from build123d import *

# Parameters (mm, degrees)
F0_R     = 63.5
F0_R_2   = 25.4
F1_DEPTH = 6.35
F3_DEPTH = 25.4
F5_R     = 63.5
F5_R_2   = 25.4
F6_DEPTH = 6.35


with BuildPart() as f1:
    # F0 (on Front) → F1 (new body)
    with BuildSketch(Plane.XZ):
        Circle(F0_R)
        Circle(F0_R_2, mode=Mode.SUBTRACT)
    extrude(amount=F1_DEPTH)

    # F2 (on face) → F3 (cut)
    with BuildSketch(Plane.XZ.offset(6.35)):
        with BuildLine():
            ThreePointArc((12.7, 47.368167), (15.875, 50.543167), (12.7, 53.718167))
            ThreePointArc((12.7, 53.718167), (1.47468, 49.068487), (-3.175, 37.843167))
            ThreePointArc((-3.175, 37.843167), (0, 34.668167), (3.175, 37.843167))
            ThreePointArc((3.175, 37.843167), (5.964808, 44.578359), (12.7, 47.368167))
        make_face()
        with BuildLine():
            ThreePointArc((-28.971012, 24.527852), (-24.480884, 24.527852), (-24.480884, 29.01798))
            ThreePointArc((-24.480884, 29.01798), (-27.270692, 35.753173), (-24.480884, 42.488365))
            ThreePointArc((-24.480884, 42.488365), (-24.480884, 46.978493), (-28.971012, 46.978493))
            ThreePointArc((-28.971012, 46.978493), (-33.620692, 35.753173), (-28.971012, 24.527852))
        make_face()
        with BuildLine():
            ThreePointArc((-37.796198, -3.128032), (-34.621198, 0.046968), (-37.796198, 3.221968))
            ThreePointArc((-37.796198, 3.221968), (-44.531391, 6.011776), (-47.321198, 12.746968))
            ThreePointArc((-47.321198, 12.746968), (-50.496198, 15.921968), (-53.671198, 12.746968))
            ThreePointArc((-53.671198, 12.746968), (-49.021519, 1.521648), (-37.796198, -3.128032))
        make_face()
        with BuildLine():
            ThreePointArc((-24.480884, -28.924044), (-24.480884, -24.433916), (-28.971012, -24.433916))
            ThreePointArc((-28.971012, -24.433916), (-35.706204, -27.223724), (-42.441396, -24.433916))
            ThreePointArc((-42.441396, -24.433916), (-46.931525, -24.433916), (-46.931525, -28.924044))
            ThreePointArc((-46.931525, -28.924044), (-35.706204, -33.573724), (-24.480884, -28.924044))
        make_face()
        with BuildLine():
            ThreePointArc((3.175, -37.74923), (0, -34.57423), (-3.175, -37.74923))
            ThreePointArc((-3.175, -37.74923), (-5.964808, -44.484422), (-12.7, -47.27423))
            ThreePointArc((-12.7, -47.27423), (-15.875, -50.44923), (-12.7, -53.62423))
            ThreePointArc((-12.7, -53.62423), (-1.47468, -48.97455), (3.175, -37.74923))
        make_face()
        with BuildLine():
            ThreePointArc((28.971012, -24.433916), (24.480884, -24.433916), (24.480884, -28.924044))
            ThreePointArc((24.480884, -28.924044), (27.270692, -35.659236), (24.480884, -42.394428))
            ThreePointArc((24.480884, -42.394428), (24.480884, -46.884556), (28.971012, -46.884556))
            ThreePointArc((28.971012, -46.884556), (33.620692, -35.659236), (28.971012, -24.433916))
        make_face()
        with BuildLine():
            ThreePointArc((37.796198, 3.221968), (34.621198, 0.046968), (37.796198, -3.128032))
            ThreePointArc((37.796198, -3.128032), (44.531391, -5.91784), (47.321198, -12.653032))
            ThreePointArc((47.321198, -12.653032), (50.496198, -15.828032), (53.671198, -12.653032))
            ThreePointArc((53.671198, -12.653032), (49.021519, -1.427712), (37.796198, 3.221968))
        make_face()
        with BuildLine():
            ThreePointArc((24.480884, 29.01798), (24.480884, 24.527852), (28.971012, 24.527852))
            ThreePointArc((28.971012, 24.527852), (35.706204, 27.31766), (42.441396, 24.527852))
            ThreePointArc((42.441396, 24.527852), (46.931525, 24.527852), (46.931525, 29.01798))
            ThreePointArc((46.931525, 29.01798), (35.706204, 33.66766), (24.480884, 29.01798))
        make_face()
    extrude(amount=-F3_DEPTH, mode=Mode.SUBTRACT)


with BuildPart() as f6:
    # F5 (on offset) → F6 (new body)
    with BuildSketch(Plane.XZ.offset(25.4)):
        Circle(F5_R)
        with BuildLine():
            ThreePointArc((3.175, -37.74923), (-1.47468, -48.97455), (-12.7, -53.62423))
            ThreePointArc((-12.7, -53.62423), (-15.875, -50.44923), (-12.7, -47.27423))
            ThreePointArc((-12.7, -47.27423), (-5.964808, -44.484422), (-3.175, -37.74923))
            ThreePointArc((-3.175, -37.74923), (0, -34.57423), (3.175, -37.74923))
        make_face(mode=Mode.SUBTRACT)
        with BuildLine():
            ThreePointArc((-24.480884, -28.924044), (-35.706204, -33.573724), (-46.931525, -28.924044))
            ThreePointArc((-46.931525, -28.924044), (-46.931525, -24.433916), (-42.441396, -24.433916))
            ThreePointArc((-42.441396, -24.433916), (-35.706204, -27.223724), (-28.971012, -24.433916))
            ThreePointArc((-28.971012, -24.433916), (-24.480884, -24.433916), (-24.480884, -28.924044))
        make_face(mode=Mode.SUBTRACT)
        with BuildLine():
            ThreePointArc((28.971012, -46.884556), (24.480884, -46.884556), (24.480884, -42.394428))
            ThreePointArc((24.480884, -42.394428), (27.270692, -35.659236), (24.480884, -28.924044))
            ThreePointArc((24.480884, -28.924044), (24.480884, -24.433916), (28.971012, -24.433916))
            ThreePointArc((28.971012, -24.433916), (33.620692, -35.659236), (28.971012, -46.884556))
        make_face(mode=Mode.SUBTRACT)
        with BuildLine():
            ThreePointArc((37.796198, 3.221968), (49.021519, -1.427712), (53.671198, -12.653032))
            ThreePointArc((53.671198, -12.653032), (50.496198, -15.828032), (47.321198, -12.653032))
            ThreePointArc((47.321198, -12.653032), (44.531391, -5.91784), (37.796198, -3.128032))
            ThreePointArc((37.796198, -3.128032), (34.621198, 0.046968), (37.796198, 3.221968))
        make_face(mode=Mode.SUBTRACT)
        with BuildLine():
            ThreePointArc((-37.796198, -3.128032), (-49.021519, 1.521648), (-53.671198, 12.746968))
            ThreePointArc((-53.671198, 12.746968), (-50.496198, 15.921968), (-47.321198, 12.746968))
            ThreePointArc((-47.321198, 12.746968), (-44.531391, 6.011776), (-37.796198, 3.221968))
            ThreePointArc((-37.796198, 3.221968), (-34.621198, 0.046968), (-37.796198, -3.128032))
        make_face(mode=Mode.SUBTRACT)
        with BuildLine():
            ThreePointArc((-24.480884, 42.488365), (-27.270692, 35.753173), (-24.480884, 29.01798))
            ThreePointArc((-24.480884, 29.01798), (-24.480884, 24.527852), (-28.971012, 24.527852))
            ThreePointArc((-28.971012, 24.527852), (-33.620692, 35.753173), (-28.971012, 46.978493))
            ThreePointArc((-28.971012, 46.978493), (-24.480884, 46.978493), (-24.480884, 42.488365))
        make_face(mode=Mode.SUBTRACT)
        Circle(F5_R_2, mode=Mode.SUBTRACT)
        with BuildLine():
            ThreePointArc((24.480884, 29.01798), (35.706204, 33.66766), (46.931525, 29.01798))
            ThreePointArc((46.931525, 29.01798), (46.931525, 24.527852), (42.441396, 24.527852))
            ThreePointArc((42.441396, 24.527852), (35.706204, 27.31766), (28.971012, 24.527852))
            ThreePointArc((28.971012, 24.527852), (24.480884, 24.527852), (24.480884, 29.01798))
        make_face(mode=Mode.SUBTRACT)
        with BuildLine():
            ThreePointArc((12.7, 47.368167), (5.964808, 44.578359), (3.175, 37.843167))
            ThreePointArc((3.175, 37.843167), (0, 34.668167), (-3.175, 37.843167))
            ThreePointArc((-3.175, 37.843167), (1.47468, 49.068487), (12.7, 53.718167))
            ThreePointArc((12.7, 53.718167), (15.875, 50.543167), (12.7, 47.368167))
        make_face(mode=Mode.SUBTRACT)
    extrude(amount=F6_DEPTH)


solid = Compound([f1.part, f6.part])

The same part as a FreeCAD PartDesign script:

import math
import FreeCAD as App
import Part
import Sketcher

V = App.Vector
Q = App.Units.Quantity

doc = App.newDocument("Part")
body = doc.addObject("PartDesign::Body", "Body")

sketch1 = body.newObject("Sketcher::SketchObject", "Sketch")
sketch1.AttachmentSupport = (doc.getObject("XZ_Plane"), [""])
sketch1.MapMode = "FlatFace"
sketch1.addGeometry([
    Part.Circle(V(0, 0, 0), V(0, 0, 1), 64),
    Part.Circle(V(0, 0, 0), V(0, 0, 1), 25),
], False)
sketch1.addConstraint([
    Sketcher.Constraint("Coincident", 0, 3, -1, 1),
    Sketcher.Constraint("Coincident", 1, 3, -1, 1),
    Sketcher.Constraint("Diameter", 0, Q("5 in")),
    Sketcher.Constraint("Diameter", 1, Q("2 in")),
])
pad1 = body.newObject("PartDesign::Pad", "Pad")
pad1.Profile = sketch1
pad1.Length = Q("0.25 in")

sketch2 = body.newObject("Sketcher::SketchObject", "Sketch001")
sketch2.AttachmentSupport = (doc.getObject("XZ_Plane"), [""])
sketch2.MapMode = "FlatFace"
sketch2.AttachmentOffset = App.Placement(V(0, 0, 0.25 * 25.4), App.Rotation())
sketch2.addGeometry([
    Part.ArcOfCircle(Part.Circle(V(12.7, 50.5, 0), V(0, 0, 1), 3.2), math.radians(-90), math.radians(90)),
    Part.ArcOfCircle(Part.Circle(V(12.7, 37.8, 0), V(0, 0, 1), 15.9), math.radians(90), math.radians(180)),
    Part.ArcOfCircle(Part.Circle(V(0, 37.8, 0), V(0, 0, 1), 3.2), math.radians(180), math.radians(360)),
    Part.ArcOfCircle(Part.Circle(V(12.7, 37.8, 0), V(0, 0, 1), 9.5), math.radians(90), math.radians(180)),
    Part.ArcOfCircle(Part.Circle(V(-26.7, 26.8, 0), V(0, 0, 1), 3.2), math.radians(-135), math.radians(45)),
    Part.ArcOfCircle(Part.Circle(V(-17.7, 35.8, 0), V(0, 0, 1), 9.5), math.radians(135), math.radians(225)),
    Part.ArcOfCircle(Part.Circle(V(-26.7, 44.7, 0), V(0, 0, 1), 3.2), math.radians(-45), math.radians(135)),
    Part.ArcOfCircle(Part.Circle(V(-17.7, 35.8, 0), V(0, 0, 1), 15.9), math.radians(135), math.radians(225)),
    Part.ArcOfCircle(Part.Circle(V(-37.8, 0, 0), V(0, 0, 1), 3.2), math.radians(-90), math.radians(90)),
    Part.ArcOfCircle(Part.Circle(V(-37.8, 12.7, 0), V(0, 0, 1), 9.5), math.radians(180), math.radians(270)),
    Part.ArcOfCircle(Part.Circle(V(-50.5, 12.7, 0), V(0, 0, 1), 3.2), math.radians(0), math.radians(180)),
    Part.ArcOfCircle(Part.Circle(V(-37.8, 12.7, 0), V(0, 0, 1), 15.9), math.radians(180), math.radians(270)),
    Part.ArcOfCircle(Part.Circle(V(-26.7, -26.7, 0), V(0, 0, 1), 3.2), math.radians(-45), math.radians(135)),
    Part.ArcOfCircle(Part.Circle(V(-35.7, -17.7, 0), V(0, 0, 1), 9.5), math.radians(-135), math.radians(-45)),
    Part.ArcOfCircle(Part.Circle(V(-44.7, -26.7, 0), V(0, 0, 1), 3.2), math.radians(45), math.radians(225)),
    Part.ArcOfCircle(Part.Circle(V(-35.7, -17.7, 0), V(0, 0, 1), 15.9), math.radians(-135), math.radians(-45)),
    Part.ArcOfCircle(Part.Circle(V(0, -37.7, 0), V(0, 0, 1), 3.2), math.radians(0), math.radians(180)),
    Part.ArcOfCircle(Part.Circle(V(-12.7, -37.7, 0), V(0, 0, 1), 9.5), math.radians(-90), math.radians(0)),
    Part.ArcOfCircle(Part.Circle(V(-12.7, -50.4, 0), V(0, 0, 1), 3.2), math.radians(90), math.radians(270)),
    Part.ArcOfCircle(Part.Circle(V(-12.7, -37.7, 0), V(0, 0, 1), 15.9), math.radians(-90), math.radians(0)),
    Part.ArcOfCircle(Part.Circle(V(26.7, -26.7, 0), V(0, 0, 1), 3.2), math.radians(45), math.radians(225)),
    Part.ArcOfCircle(Part.Circle(V(17.7, -35.7, 0), V(0, 0, 1), 9.5), math.radians(-45), math.radians(45)),
    Part.ArcOfCircle(Part.Circle(V(26.7, -44.6, 0), V(0, 0, 1), 3.2), math.radians(135), math.radians(315)),
    Part.ArcOfCircle(Part.Circle(V(17.7, -35.7, 0), V(0, 0, 1), 15.9), math.radians(-45), math.radians(45)),
    Part.ArcOfCircle(Part.Circle(V(37.8, 0, 0), V(0, 0, 1), 3.2), math.radians(90), math.radians(270)),
    Part.ArcOfCircle(Part.Circle(V(37.8, -12.7, 0), V(0, 0, 1), 9.5), math.radians(0), math.radians(90)),
    Part.ArcOfCircle(Part.Circle(V(50.5, -12.7, 0), V(0, 0, 1), 3.2), math.radians(180), math.radians(360)),
    Part.ArcOfCircle(Part.Circle(V(37.8, -12.7, 0), V(0, 0, 1), 15.9), math.radians(0), math.radians(90)),
    Part.ArcOfCircle(Part.Circle(V(26.7, 26.8, 0), V(0, 0, 1), 3.2), math.radians(135), math.radians(315)),
    Part.ArcOfCircle(Part.Circle(V(35.7, 17.8, 0), V(0, 0, 1), 9.5), math.radians(45), math.radians(135)),
    Part.ArcOfCircle(Part.Circle(V(44.7, 26.8, 0), V(0, 0, 1), 3.2), math.radians(-135), math.radians(45)),
    Part.ArcOfCircle(Part.Circle(V(35.7, 17.8, 0), V(0, 0, 1), 15.9), math.radians(45), math.radians(135)),
], False)
sketch2.addConstraint([
    Sketcher.Constraint("Tangent", 0, 2, 1, 1),
    Sketcher.Constraint("Tangent", 1, 2, 2, 1),
    Sketcher.Constraint("Tangent", 2, 2, 3, 2),
    Sketcher.Constraint("Tangent", 3, 1, 0, 1),
    Sketcher.Constraint("Tangent", 4, 2, 5, 2),
    Sketcher.Constraint("Tangent", 5, 1, 6, 1),
    Sketcher.Constraint("Tangent", 6, 2, 7, 1),
    Sketcher.Constraint("Tangent", 7, 2, 4, 1),
    Sketcher.Constraint("Tangent", 8, 2, 9, 2),
    Sketcher.Constraint("Tangent", 9, 1, 10, 1),
    Sketcher.Constraint("Tangent", 10, 2, 11, 1),
    Sketcher.Constraint("Tangent", 11, 2, 8, 1),
    Sketcher.Constraint("Tangent", 12, 2, 13, 2),
    Sketcher.Constraint("Tangent", 13, 1, 14, 1),
    Sketcher.Constraint("Tangent", 14, 2, 15, 1),
    Sketcher.Constraint("Tangent", 15, 2, 12, 1),
    Sketcher.Constraint("Tangent", 16, 2, 17, 2),
    Sketcher.Constraint("Tangent", 17, 1, 18, 1),
    Sketcher.Constraint("Tangent", 18, 2, 19, 1),
    Sketcher.Constraint("Tangent", 19, 2, 16, 1),
    Sketcher.Constraint("Tangent", 20, 2, 21, 2),
    Sketcher.Constraint("Tangent", 21, 1, 22, 1),
    Sketcher.Constraint("Tangent", 22, 2, 23, 1),
    Sketcher.Constraint("Tangent", 23, 2, 20, 1),
    Sketcher.Constraint("Tangent", 24, 2, 25, 2),
    Sketcher.Constraint("Tangent", 25, 1, 26, 1),
    Sketcher.Constraint("Tangent", 26, 2, 27, 1),
    Sketcher.Constraint("Tangent", 27, 2, 24, 1),
    Sketcher.Constraint("Tangent", 28, 2, 29, 2),
    Sketcher.Constraint("Tangent", 29, 1, 30, 1),
    Sketcher.Constraint("Tangent", 30, 2, 31, 1),
    Sketcher.Constraint("Tangent", 31, 2, 28, 1),
    Sketcher.Constraint("Coincident", 3, 3, 1, 3),
    Sketcher.Constraint("Coincident", 7, 3, 5, 3),
    Sketcher.Constraint("Coincident", 11, 3, 9, 3),
    Sketcher.Constraint("Coincident", 15, 3, 13, 3),
    Sketcher.Constraint("Coincident", 19, 3, 17, 3),
    Sketcher.Constraint("Coincident", 23, 3, 21, 3),
    Sketcher.Constraint("Coincident", 27, 3, 25, 3),
    Sketcher.Constraint("Coincident", 31, 3, 29, 3),
    Sketcher.Constraint("Equal", 2, 4),
    Sketcher.Constraint("Equal", 3, 5),
    Sketcher.Constraint("Equal", 6, 8),
    Sketcher.Constraint("Equal", 3, 9),
    Sketcher.Constraint("Equal", 10, 12),
    Sketcher.Constraint("Equal", 9, 13),
    Sketcher.Constraint("Equal", 14, 16),
    Sketcher.Constraint("Equal", 13, 17),
    Sketcher.Constraint("Equal", 18, 20),
    Sketcher.Constraint("Equal", 17, 21),
    Sketcher.Constraint("Equal", 22, 24),
    Sketcher.Constraint("Equal", 21, 25),
    Sketcher.Constraint("Equal", 26, 28),
    Sketcher.Constraint("Equal", 25, 29),
    Sketcher.Constraint("Symmetric", 12, 3, 20, 3, -2),
    Sketcher.Constraint("Symmetric", 8, 3, 24, 3, -2),
    Sketcher.Constraint("Symmetric", 4, 3, 28, 3, -2),
    Sketcher.Constraint("Symmetric", 1, 2, 2, 2, -2),
    Sketcher.Constraint("Symmetric", 16, 2, 19, 2, -2),
    Sketcher.Constraint("Horizontal", 9, 3, 10, 3),
    Sketcher.Constraint("Horizontal", 12, 3, 14, 3),
    Sketcher.Constraint("Horizontal", 25, 3, 26, 3),
    Sketcher.Constraint("Horizontal", 28, 3, 30, 3),
    Sketcher.Constraint("Horizontal", 15, 2, 20, 2),
    Sketcher.Constraint("Horizontal", 7, 2, 28, 2),
    Sketcher.Constraint("Vertical", 0, 3, 1, 3),
    Sketcher.Constraint("Vertical", 4, 3, 6, 3),
    Sketcher.Constraint("Vertical", 8, 3, 9, 3),
    Sketcher.Constraint("Vertical", 6, 3, 12, 3),
    Sketcher.Constraint("Vertical", 17, 3, 18, 3),
    Sketcher.Constraint("Vertical", 20, 3, 22, 3),
    Sketcher.Constraint("Vertical", 24, 3, 25, 3),
    Sketcher.Constraint("Vertical", 7, 2, 12, 2),
    Sketcher.Constraint("Radius", 0, Q("0.125 in")),
    Sketcher.Constraint("Radius", 1, Q("0.625 in")),
    Sketcher.Constraint("DistanceY", 13, 3, -1, 1, Q("0.6968002 in")),
    Sketcher.Constraint("DistanceX", 9, 3, -1, 1, 37.796199),
    Sketcher.Constraint("DistanceX", 5, 3, -1, 1, 17.745691),
    Sketcher.Constraint("DistanceY", -1, 1, 6, 3, 44.733429),
    Sketcher.Constraint("DistanceY", -1, 1, 8, 3, 0.046968),
    Sketcher.Constraint("DistanceY", 12, 3, -1, 1, 26.67898),
    Sketcher.Constraint("DistanceY", 16, 3, -1, 1, 37.74923),
    Sketcher.Constraint("DistanceY", -1, 1, 0, 3, 50.543167),
])
pocket1 = body.newObject("PartDesign::Pocket", "Pocket")
pocket1.Profile = sketch2
pocket1.Length = Q("1 in")
body2 = doc.addObject("PartDesign::Body", "Body001")

sketch3 = body2.newObject("Sketcher::SketchObject", "Sketch002")
sketch3.AttachmentSupport = (doc.getObject("XZ_Plane001"), [""])
sketch3.MapMode = "FlatFace"
sketch3.AttachmentOffset = App.Placement(V(0, 0, 1 * 25.4), App.Rotation())
sketch3.addGeometry([
    Part.Circle(V(0, 0, 0), V(0, 0, 1), 63.5),
    Part.ArcOfCircle(Part.Circle(V(-26.7, -26.7, 0), V(0, 0, 1), 3.2), math.radians(-45), math.radians(135)),
    Part.ArcOfCircle(Part.Circle(V(-35.7, -17.7, 0), V(0, 0, 1), 15.9), math.radians(-135), math.radians(-45)),
    Part.ArcOfCircle(Part.Circle(V(-44.7, -26.7, 0), V(0, 0, 1), 3.2), math.radians(45), math.radians(225)),
    Part.ArcOfCircle(Part.Circle(V(-35.7, -17.7, 0), V(0, 0, 1), 9.5), math.radians(-135), math.radians(-45)),
    Part.ArcOfCircle(Part.Circle(V(0, -37.7, 0), V(0, 0, 1), 3.2), math.radians(0), math.radians(180)),
    Part.ArcOfCircle(Part.Circle(V(-12.7, -37.7, 0), V(0, 0, 1), 15.9), math.radians(-90), math.radians(0)),
    Part.ArcOfCircle(Part.Circle(V(-12.7, -50.4, 0), V(0, 0, 1), 3.2), math.radians(90), math.radians(270)),
    Part.ArcOfCircle(Part.Circle(V(-12.7, -37.7, 0), V(0, 0, 1), 9.5), math.radians(-90), math.radians(0)),
    Part.ArcOfCircle(Part.Circle(V(17.7, -35.7, 0), V(0, 0, 1), 15.9), math.radians(-45), math.radians(45)),
    Part.ArcOfCircle(Part.Circle(V(26.7, -44.6, 0), V(0, 0, 1), 3.2), math.radians(135), math.radians(315)),
    Part.ArcOfCircle(Part.Circle(V(17.7, -35.7, 0), V(0, 0, 1), 9.5), math.radians(-45), math.radians(45)),
    Part.ArcOfCircle(Part.Circle(V(26.7, -26.7, 0), V(0, 0, 1), 3.2), math.radians(45), math.radians(225)),
    Part.Circle(V(0, 0, 0), V(0, 0, 1), 25.4),
    Part.ArcOfCircle(Part.Circle(V(37.8, 0, 0), V(0, 0, 1), 3.2), math.radians(90), math.radians(270)),
    Part.ArcOfCircle(Part.Circle(V(37.8, -12.7, 0), V(0, 0, 1), 15.9), math.radians(0), math.radians(90)),
    Part.ArcOfCircle(Part.Circle(V(50.5, -12.7, 0), V(0, 0, 1), 3.2), math.radians(180), math.radians(360)),
    Part.ArcOfCircle(Part.Circle(V(37.8, -12.7, 0), V(0, 0, 1), 9.5), math.radians(0), math.radians(90)),
    Part.ArcOfCircle(Part.Circle(V(-37.8, 0, 0), V(0, 0, 1), 3.2), math.radians(-90), math.radians(90)),
    Part.ArcOfCircle(Part.Circle(V(-37.8, 12.7, 0), V(0, 0, 1), 15.9), math.radians(180), math.radians(270)),
    Part.ArcOfCircle(Part.Circle(V(-50.5, 12.7, 0), V(0, 0, 1), 3.2), math.radians(0), math.radians(180)),
    Part.ArcOfCircle(Part.Circle(V(-37.8, 12.7, 0), V(0, 0, 1), 9.5), math.radians(180), math.radians(270)),
    Part.ArcOfCircle(Part.Circle(V(-26.7, 44.7, 0), V(0, 0, 1), 3.2), math.radians(-45), math.radians(135)),
    Part.ArcOfCircle(Part.Circle(V(-17.7, 35.8, 0), V(0, 0, 1), 9.5), math.radians(135), math.radians(225)),
    Part.ArcOfCircle(Part.Circle(V(-26.7, 26.8, 0), V(0, 0, 1), 3.2), math.radians(-135), math.radians(45)),
    Part.ArcOfCircle(Part.Circle(V(-17.7, 35.8, 0), V(0, 0, 1), 15.9), math.radians(135), math.radians(225)),
    Part.ArcOfCircle(Part.Circle(V(12.7, 50.5, 0), V(0, 0, 1), 3.2), math.radians(-90), math.radians(90)),
    Part.ArcOfCircle(Part.Circle(V(12.7, 37.8, 0), V(0, 0, 1), 9.5), math.radians(90), math.radians(180)),
    Part.ArcOfCircle(Part.Circle(V(0, 37.8, 0), V(0, 0, 1), 3.2), math.radians(180), math.radians(360)),
    Part.ArcOfCircle(Part.Circle(V(12.7, 37.8, 0), V(0, 0, 1), 15.9), math.radians(90), math.radians(180)),
    Part.ArcOfCircle(Part.Circle(V(26.7, 26.8, 0), V(0, 0, 1), 3.2), math.radians(135), math.radians(315)),
    Part.ArcOfCircle(Part.Circle(V(35.7, 17.8, 0), V(0, 0, 1), 15.9), math.radians(45), math.radians(135)),
    Part.ArcOfCircle(Part.Circle(V(44.7, 26.8, 0), V(0, 0, 1), 3.2), math.radians(-135), math.radians(45)),
    Part.ArcOfCircle(Part.Circle(V(35.7, 17.8, 0), V(0, 0, 1), 9.5), math.radians(45), math.radians(135)),
], False)
sketch3.addConstraint([
    Sketcher.Constraint("Tangent", 1, 1, 2, 2),
    Sketcher.Constraint("Tangent", 2, 1, 3, 2),
    Sketcher.Constraint("Tangent", 3, 1, 4, 1),
    Sketcher.Constraint("Tangent", 4, 2, 1, 2),
    Sketcher.Constraint("Tangent", 5, 1, 6, 2),
    Sketcher.Constraint("Tangent", 6, 1, 7, 2),
    Sketcher.Constraint("Tangent", 7, 1, 8, 1),
    Sketcher.Constraint("Tangent", 8, 2, 5, 2),
    Sketcher.Constraint("Tangent", 9, 1, 10, 2),
    Sketcher.Constraint("Tangent", 10, 1, 11, 1),
    Sketcher.Constraint("Tangent", 11, 2, 12, 2),
    Sketcher.Constraint("Tangent", 12, 1, 9, 2),
    Sketcher.Constraint("Tangent", 14, 1, 15, 2),
    Sketcher.Constraint("Tangent", 15, 1, 16, 2),
    Sketcher.Constraint("Tangent", 16, 1, 17, 1),
    Sketcher.Constraint("Tangent", 17, 2, 14, 2),
    Sketcher.Constraint("Tangent", 18, 1, 19, 2),
    Sketcher.Constraint("Tangent", 19, 1, 20, 2),
    Sketcher.Constraint("Tangent", 20, 1, 21, 1),
    Sketcher.Constraint("Tangent", 21, 2, 18, 2),
    Sketcher.Constraint("Tangent", 22, 1, 23, 1),
    Sketcher.Constraint("Tangent", 23, 2, 24, 2),
    Sketcher.Constraint("Tangent", 24, 1, 25, 2),
    Sketcher.Constraint("Tangent", 25, 1, 22, 2),
    Sketcher.Constraint("Tangent", 26, 1, 27, 1),
    Sketcher.Constraint("Tangent", 27, 2, 28, 2),
    Sketcher.Constraint("Tangent", 28, 1, 29, 2),
    Sketcher.Constraint("Tangent", 29, 1, 26, 2),
    Sketcher.Constraint("Tangent", 30, 1, 31, 2),
    Sketcher.Constraint("Tangent", 31, 1, 32, 2),
    Sketcher.Constraint("Tangent", 32, 1, 33, 1),
    Sketcher.Constraint("Tangent", 33, 2, 30, 2),
    Sketcher.Constraint("Coincident", 0, 3, -1, 1),
    Sketcher.Constraint("Coincident", 13, 3, -1, 1),
    Sketcher.Constraint("Coincident", 4, 3, 2, 3),
    Sketcher.Constraint("Coincident", 8, 3, 6, 3),
    Sketcher.Constraint("Coincident", 11, 3, 9, 3),
    Sketcher.Constraint("Coincident", 17, 3, 15, 3),
    Sketcher.Constraint("Coincident", 21, 3, 19, 3),
    Sketcher.Constraint("Coincident", 25, 3, 23, 3),
    Sketcher.Constraint("Coincident", 29, 3, 27, 3),
    Sketcher.Constraint("Coincident", 33, 3, 31, 3),
    Sketcher.Constraint("Equal", 3, 5),
    Sketcher.Constraint("Equal", 2, 6),
    Sketcher.Constraint("Equal", 6, 9),
    Sketcher.Constraint("Equal", 7, 10),
    Sketcher.Constraint("Equal", 12, 14),
    Sketcher.Constraint("Equal", 9, 15),
    Sketcher.Constraint("Equal", 16, 18),
    Sketcher.Constraint("Equal", 15, 19),
    Sketcher.Constraint("Equal", 20, 22),
    Sketcher.Constraint("Equal", 11, 23),
    Sketcher.Constraint("Equal", 24, 26),
    Sketcher.Constraint("Equal", 23, 27),
    Sketcher.Constraint("Equal", 28, 30),
    Sketcher.Constraint("Equal", 29, 31),
    Sketcher.Constraint("Symmetric", 1, 3, 12, 3, -2),
    Sketcher.Constraint("Symmetric", 14, 3, 18, 3, -2),
    Sketcher.Constraint("Symmetric", 24, 3, 30, 3, -2),
    Sketcher.Constraint("Symmetric", 5, 1, 8, 2, -2),
    Sketcher.Constraint("Symmetric", 27, 2, 28, 1, -2),
    Sketcher.Constraint("Horizontal", 1, 3, 3, 3),
    Sketcher.Constraint("Horizontal", 15, 3, 16, 3),
    Sketcher.Constraint("Horizontal", 19, 3, 20, 3),
    Sketcher.Constraint("Horizontal", 30, 3, 32, 3),
    Sketcher.Constraint("Horizontal", 2, 1, 11, 2),
    Sketcher.Constraint("Horizontal", 23, 2, 30, 1),
    Sketcher.Constraint("Vertical", 6, 3, 7, 3),
    Sketcher.Constraint("Vertical", 10, 3, 12, 3),
    Sketcher.Constraint("Vertical", 14, 3, 15, 3),
    Sketcher.Constraint("Vertical", 18, 3, 19, 3),
    Sketcher.Constraint("Vertical", 1, 3, 22, 3),
    Sketcher.Constraint("Vertical", 22, 3, 24, 3),
    Sketcher.Constraint("Vertical", 26, 3, 27, 3),
    Sketcher.Constraint("Vertical", 1, 1, 22, 1),
    Sketcher.Constraint("Diameter", 0, Q("5 in")),
    Sketcher.Constraint("Diameter", 13, Q("2 in")),
    Sketcher.Constraint("Radius", 1, Q("0.125 in")),
    Sketcher.Constraint("Radius", 2, Q("0.625 in")),
    Sketcher.Constraint("DistanceY", 2, 3, -1, 1, Q("0.6968001 in")),
    Sketcher.Constraint("DistanceX", -1, 1, 15, 3, 37.796199),
    Sketcher.Constraint("DistanceY", 1, 3, -1, 1, 26.67898),
    Sketcher.Constraint("DistanceX", 3, 3, -1, 1, 44.686461),
    Sketcher.Constraint("DistanceY", 5, 3, -1, 1, 37.74923),
    Sketcher.Constraint("DistanceY", -1, 1, 14, 3, 0.046968),
    Sketcher.Constraint("DistanceY", -1, 1, 22, 3, 44.733429),
    Sketcher.Constraint("DistanceY", -1, 1, 26, 3, 50.543167),
])
pad2 = body2.newObject("PartDesign::Pad", "Pad001")
pad2.Profile = sketch3
pad2.Length = Q("0.25 in")

doc.recompute()
